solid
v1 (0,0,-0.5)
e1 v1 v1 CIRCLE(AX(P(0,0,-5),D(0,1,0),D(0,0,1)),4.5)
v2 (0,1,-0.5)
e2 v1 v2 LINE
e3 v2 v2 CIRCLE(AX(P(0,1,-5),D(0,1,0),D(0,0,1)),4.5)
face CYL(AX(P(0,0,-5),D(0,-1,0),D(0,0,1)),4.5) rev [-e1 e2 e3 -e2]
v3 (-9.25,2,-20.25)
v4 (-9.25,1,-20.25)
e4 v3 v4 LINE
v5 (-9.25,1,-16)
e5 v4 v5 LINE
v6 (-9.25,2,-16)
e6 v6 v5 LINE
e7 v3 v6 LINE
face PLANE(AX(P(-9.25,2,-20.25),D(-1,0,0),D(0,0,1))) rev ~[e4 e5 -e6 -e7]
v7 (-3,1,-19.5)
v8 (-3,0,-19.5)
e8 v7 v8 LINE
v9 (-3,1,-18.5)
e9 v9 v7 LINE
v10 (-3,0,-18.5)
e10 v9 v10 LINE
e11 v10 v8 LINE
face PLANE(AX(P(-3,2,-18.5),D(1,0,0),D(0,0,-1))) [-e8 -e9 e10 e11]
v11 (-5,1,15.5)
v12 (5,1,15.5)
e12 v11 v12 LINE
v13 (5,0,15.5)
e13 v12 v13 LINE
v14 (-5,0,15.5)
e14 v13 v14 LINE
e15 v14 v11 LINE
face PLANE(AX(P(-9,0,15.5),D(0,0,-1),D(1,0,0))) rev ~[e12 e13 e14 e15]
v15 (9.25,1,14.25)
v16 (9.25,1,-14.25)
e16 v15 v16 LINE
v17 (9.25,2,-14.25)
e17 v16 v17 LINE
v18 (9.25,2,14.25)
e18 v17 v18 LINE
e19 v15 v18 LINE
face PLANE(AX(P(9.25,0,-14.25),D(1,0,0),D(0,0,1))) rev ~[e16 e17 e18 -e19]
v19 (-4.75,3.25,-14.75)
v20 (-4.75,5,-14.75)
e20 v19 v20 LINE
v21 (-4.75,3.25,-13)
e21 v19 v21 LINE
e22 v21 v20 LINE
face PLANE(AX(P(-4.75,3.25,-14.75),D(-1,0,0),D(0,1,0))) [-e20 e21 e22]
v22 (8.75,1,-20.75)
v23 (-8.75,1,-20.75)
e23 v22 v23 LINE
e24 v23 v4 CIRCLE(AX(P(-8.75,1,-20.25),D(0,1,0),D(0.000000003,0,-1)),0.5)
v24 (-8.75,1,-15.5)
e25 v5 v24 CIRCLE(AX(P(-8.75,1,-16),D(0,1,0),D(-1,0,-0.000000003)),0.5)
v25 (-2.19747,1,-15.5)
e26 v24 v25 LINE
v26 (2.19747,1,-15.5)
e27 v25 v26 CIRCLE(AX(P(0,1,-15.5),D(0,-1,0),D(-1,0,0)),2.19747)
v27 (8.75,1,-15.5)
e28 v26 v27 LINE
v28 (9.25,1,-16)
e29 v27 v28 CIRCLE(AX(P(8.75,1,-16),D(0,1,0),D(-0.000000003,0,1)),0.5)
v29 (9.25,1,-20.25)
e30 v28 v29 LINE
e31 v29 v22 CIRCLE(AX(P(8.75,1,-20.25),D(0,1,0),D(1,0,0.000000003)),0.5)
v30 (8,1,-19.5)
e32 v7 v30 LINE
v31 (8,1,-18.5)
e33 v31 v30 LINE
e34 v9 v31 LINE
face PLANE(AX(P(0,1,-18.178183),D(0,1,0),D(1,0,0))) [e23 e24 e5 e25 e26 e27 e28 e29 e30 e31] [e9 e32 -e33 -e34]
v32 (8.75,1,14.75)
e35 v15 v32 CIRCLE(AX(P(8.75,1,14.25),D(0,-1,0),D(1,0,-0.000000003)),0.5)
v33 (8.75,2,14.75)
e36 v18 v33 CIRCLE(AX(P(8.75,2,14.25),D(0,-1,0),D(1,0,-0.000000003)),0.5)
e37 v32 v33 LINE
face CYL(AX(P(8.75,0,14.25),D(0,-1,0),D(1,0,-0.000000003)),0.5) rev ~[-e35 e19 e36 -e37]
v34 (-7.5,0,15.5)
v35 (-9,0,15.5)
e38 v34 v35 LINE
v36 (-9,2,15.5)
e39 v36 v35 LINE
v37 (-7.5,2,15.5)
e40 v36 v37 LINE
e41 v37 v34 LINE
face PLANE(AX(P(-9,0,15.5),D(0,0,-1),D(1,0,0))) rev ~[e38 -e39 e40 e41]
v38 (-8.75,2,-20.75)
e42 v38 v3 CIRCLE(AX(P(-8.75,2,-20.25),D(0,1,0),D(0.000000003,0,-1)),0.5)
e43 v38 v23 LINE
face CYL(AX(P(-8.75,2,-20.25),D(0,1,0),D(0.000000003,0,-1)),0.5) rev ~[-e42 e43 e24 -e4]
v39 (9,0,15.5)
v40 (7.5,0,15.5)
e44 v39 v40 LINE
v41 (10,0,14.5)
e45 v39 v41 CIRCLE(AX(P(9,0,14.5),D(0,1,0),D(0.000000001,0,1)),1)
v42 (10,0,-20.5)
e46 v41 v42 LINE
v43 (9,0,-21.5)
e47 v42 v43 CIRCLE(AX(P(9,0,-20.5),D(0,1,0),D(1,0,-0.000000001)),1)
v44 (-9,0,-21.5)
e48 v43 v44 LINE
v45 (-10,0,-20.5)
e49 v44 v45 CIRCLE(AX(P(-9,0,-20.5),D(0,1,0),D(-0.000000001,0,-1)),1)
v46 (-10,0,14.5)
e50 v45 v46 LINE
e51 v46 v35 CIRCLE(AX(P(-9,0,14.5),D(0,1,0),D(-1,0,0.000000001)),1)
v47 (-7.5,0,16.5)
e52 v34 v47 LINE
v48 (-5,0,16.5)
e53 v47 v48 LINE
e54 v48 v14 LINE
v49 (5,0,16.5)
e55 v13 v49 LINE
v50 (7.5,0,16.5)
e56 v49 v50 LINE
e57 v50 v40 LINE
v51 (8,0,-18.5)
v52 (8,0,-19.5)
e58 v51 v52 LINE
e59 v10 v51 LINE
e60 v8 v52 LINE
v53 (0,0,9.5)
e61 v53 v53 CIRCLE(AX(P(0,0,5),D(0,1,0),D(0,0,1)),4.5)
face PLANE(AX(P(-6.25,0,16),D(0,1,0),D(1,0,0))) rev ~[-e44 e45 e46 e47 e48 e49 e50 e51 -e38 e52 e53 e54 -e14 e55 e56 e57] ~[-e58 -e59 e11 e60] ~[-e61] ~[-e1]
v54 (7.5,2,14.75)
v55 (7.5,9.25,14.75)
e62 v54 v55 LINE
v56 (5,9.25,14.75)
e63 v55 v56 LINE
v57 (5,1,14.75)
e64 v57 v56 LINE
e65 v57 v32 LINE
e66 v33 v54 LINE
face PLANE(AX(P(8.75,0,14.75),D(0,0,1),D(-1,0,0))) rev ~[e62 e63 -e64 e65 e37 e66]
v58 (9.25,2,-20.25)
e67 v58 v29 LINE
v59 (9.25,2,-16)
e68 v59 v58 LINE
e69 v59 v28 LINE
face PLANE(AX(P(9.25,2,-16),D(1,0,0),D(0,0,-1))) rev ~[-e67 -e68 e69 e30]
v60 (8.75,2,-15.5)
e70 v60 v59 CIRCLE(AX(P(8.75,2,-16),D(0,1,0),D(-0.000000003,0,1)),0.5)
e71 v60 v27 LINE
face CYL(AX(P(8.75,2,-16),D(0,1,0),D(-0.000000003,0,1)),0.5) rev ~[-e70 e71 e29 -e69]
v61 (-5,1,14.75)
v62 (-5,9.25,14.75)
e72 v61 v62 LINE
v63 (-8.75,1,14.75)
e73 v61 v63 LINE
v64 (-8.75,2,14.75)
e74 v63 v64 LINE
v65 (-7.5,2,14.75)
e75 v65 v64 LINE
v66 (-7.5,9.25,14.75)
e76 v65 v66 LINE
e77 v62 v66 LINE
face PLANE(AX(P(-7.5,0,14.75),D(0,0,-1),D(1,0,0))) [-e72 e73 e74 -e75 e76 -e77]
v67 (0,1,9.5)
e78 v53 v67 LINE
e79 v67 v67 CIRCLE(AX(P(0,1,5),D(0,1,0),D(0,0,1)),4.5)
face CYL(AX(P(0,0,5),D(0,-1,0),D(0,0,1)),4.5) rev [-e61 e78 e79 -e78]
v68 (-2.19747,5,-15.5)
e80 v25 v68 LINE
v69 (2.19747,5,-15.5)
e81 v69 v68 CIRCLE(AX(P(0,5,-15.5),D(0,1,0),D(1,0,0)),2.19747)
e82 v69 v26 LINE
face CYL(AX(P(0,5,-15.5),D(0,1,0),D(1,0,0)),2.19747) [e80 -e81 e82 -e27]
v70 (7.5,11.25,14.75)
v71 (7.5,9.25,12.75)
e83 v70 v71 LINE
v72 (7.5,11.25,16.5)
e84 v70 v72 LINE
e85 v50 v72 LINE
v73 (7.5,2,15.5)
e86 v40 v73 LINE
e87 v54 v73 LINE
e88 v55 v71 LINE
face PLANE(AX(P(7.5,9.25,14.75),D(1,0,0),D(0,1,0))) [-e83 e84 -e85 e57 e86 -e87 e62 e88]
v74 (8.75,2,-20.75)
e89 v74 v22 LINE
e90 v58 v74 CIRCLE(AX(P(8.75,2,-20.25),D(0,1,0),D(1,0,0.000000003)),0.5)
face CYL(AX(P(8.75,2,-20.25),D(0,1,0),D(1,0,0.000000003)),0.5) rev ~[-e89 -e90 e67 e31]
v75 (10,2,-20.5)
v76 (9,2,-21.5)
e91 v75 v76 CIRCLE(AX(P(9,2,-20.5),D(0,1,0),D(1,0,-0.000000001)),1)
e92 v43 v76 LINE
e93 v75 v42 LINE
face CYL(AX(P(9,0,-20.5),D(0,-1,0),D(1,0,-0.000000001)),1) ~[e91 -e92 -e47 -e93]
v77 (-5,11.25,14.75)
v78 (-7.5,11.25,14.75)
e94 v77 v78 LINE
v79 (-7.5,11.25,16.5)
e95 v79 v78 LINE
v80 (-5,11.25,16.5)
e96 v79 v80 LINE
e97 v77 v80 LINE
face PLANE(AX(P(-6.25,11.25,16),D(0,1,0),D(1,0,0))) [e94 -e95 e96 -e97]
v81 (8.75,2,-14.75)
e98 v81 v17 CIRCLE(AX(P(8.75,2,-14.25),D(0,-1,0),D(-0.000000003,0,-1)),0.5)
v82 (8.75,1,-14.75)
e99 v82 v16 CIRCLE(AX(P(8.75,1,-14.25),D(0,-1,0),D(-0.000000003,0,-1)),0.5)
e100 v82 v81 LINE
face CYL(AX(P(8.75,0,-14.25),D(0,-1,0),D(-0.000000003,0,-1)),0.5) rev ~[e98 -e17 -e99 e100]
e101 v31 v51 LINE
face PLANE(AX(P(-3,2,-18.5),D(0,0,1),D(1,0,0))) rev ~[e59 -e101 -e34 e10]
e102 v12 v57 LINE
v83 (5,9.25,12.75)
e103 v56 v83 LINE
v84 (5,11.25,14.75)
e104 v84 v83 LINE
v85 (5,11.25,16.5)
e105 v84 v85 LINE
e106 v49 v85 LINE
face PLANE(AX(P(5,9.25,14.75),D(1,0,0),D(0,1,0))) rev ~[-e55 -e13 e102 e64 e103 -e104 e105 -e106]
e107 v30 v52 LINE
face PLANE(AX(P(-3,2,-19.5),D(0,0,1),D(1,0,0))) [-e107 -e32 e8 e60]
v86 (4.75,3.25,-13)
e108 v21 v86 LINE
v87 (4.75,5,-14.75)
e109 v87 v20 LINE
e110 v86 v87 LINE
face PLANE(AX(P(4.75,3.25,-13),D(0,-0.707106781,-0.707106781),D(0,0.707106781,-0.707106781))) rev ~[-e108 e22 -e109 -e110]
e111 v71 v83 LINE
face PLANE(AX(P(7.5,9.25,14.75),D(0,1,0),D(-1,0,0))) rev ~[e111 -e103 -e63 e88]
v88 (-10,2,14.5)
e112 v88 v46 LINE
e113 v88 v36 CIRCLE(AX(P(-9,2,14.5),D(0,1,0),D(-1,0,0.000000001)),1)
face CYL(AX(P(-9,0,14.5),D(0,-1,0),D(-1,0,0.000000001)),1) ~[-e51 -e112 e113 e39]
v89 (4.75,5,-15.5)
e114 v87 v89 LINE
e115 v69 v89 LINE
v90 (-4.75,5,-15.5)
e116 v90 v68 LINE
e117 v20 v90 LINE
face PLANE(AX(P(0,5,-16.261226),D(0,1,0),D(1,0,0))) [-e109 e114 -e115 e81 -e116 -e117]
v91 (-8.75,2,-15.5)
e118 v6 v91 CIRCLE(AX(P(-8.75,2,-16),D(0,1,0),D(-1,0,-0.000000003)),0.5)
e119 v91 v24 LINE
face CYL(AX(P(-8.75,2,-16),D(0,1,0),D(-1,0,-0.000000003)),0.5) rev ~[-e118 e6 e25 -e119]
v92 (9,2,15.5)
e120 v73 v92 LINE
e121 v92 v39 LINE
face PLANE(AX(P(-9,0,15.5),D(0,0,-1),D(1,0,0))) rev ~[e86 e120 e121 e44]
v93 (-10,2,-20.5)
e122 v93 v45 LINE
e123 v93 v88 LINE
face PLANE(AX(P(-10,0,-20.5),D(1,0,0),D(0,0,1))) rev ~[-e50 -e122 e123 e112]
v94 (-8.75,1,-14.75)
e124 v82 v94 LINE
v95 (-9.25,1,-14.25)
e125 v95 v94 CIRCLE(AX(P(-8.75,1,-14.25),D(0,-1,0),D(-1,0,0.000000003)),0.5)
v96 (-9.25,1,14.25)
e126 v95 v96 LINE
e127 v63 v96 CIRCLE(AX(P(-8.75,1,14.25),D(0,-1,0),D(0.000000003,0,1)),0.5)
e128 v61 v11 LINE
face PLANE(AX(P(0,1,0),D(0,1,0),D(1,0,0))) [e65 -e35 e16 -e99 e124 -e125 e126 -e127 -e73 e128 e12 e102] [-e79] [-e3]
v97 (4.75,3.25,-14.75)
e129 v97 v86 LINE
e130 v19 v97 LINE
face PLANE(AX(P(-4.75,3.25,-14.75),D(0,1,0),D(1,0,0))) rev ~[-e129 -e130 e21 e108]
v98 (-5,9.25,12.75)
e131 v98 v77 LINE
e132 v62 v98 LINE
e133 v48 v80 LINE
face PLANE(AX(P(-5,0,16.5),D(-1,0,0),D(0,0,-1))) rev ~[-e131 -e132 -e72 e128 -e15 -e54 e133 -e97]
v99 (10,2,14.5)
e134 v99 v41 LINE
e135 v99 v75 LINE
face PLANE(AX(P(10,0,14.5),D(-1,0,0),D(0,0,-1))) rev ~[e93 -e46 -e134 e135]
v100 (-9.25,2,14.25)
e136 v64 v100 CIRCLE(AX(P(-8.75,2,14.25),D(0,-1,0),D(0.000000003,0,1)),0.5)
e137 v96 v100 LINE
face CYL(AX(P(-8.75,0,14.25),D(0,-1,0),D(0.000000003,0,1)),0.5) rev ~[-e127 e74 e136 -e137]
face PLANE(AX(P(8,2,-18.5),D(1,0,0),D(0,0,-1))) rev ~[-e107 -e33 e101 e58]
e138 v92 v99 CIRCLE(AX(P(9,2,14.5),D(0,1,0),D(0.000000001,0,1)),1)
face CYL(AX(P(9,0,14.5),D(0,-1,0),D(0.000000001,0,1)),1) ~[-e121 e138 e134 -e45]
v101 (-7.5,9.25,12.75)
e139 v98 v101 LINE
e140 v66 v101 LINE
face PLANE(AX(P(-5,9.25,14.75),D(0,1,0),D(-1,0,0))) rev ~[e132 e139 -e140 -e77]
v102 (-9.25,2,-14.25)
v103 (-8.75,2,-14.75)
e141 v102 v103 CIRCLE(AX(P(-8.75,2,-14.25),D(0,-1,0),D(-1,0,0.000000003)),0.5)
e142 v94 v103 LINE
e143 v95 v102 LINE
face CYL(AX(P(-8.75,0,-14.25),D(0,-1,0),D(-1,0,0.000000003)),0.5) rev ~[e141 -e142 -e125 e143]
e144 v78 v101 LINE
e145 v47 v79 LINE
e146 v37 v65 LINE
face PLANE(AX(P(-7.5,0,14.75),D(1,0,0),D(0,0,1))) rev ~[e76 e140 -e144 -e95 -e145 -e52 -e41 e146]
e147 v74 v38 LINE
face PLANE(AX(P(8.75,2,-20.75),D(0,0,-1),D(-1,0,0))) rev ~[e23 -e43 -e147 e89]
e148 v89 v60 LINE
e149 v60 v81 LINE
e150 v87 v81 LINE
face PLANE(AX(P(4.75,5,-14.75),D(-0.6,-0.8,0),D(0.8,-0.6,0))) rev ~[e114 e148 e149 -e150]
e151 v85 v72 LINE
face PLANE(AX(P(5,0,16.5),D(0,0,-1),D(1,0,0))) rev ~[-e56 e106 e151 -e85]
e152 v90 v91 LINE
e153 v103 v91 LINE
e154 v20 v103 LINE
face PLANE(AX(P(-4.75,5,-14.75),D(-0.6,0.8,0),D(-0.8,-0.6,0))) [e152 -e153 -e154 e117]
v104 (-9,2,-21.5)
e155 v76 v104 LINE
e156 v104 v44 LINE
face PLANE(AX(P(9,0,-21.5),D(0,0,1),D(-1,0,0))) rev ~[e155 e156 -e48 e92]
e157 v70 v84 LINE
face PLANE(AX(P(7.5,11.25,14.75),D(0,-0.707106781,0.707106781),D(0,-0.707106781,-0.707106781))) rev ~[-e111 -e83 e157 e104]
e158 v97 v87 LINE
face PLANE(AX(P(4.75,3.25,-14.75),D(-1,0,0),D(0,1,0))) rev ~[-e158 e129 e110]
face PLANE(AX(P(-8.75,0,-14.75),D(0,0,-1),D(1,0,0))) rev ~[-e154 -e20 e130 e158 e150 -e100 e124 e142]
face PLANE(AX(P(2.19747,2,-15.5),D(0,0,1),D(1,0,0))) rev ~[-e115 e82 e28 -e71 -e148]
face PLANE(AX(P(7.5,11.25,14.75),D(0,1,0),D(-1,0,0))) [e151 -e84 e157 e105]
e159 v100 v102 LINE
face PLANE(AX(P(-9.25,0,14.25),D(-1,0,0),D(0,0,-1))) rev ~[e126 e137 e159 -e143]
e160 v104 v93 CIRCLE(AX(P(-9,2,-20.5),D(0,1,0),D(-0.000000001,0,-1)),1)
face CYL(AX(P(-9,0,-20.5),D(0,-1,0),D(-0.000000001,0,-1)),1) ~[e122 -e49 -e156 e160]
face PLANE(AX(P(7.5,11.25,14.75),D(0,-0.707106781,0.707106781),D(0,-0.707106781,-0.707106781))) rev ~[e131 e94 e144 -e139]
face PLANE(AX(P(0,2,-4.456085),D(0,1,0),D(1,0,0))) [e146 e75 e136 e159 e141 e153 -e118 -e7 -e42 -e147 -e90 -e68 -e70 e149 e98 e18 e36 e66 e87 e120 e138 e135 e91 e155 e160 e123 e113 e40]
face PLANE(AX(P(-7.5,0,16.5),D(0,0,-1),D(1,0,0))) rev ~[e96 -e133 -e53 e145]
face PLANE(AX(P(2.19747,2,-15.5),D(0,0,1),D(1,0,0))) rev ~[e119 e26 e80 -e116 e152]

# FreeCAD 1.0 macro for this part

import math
import FreeCAD as App
import Part
import Sketcher

V = App.Vector
Q = App.Units.Quantity

doc = App.newDocument("Part")
params = doc.addObject("Spreadsheet::Sheet", "Params")
for row, (alias, value) in enumerate([
    ("sketch1_radius", "1 mm"),
    ("sketch1_radius2", "0.5 mm"),
    ("sketch1_width", "18 mm"),
    ("sketch1_height", "35 mm"),
    ("sketch1_width2", "17.5 mm"),
    ("pad1_length", "1 mm"),
    ("sketch2_diameter", "9 mm"),
    ("sketch2_radius", "0.5 mm"),
    ("sketch2_width", "17.5 mm"),
    ("sketch2_height", "28.5 mm"),
    ("pad2_length", "1 mm"),
    ("sketch3_radius", "1 mm"),
    ("sketch3_radius2", "0.5 mm"),
    ("sketch3_width", "18 mm"),
    ("sketch3_height", "35 mm"),
    ("sketch3_width2", "1.5 mm"),
    ("pad3_length", "2 mm"),
    ("sketch4_width", "17.5 mm"),
    ("sketch4_height", "0.75 mm"),
    ("pad4_length", "5 mm"),
    ("sketch5_width", "9.5 mm"),
    ("sketch5_height", "1.75 mm"),
    ("pad5_length", "1.75 mm"),
    ("sketch6_width", "4 mm"),
    ("sketch6_height", "3 mm"),
    ("pocket1_length", "0.75 mm"),
    ("sketch7_width", "2.5 mm"),
    ("sketch7_height", "1.75 mm"),
    ("pad6_length", "11.25 mm"),
    ("sketch8_height", "2 mm"),
    ("sketch8_width", "2.5 mm"),
    ("pad7_length", "2 mm"),
    ("sketch9_width", "2 mm"),
    ("pocket2_length", "15 mm"),
    ("sketch10_width", "1.75 mm"),
    ("pocket3_length", "9.5 mm"),
    ("sketch11_radius", "0.5 mm"),
    ("sketch11_width", "17.5 mm"),
    ("sketch11_height", "4.25 mm"),
    ("pocket4_length", "1 mm"),
    ("pad8_length", "3 mm"),
    ("sketch13_width", "11 mm"),
    ("sketch13_height", "1 mm"),
    ("pocket5_length", "3 mm"),
], start=1):
    params.set(f"A{row}", alias)
    params.set(f"B{row}", "=" + value)
    params.setAlias(f"B{row}", alias)

body = doc.addObject("PartDesign::Body", "Body")

sketch1 = doc.addObject("Sketcher::SketchObject", "Sketch")
body.addObject(sketch1)
sketch1.AttachmentSupport = (doc.XZ_Plane, [""])
sketch1.MapMode = "FlatFace"
sketch1.addGeometry([
    Part.LineSegment(V(9, -21.5, 0), V(-9, -21.5, 0)),
    Part.ArcOfCircle(Part.Circle(V(-9, -20.5, 0), V(0, 0, 1), 1), math.radians(-180), math.radians(-90)),
    Part.LineSegment(V(-10, -20.5, 0), V(-10, 14.5, 0)),
    Part.ArcOfCircle(Part.Circle(V(-9, 14.5, 0), V(0, 0, 1), 1), math.radians(90), math.radians(180)),
    Part.LineSegment(V(-9, 15.5, 0), V(9, 15.5, 0)),
    Part.ArcOfCircle(Part.Circle(V(9, 14.5, 0), V(0, 0, 1), 1), math.radians(0), math.radians(90)),
    Part.LineSegment(V(10, 14.5, 0), V(10, -20.5, 0)),
    Part.ArcOfCircle(Part.Circle(V(9, -20.5, 0), V(0, 0, 1), 1), math.radians(-90), math.radians(0)),
    Part.ArcOfCircle(Part.Circle(V(8.75, -14.25, 0), V(0, 0, 1), 0.5), math.radians(-90), math.radians(0)),
    Part.LineSegment(V(9.25, -14.25, 0), V(9.25, 14.25, 0)),
    Part.ArcOfCircle(Part.Circle(V(8.75, 14.25, 0), V(0, 0, 1), 0.5), math.radians(0), math.radians(90)),
    Part.LineSegment(V(8.75, 14.75, 0), V(-8.75, 14.75, 0)),
    Part.ArcOfCircle(Part.Circle(V(-8.75, 14.25, 0), V(0, 0, 1), 0.5), math.radians(90), math.radians(180)),
    Part.LineSegment(V(-9.25, 14.25, 0), V(-9.25, -14.25, 0)),
    Part.ArcOfCircle(Part.Circle(V(-8.75, -14.25, 0), V(0, 0, 1), 0.5), math.radians(180), math.radians(270)),
    Part.LineSegment(V(-8.75, -14.75, 0), V(8.75, -14.75, 0)),
], False)
sketch1.addConstraint([
    Sketcher.Constraint("Tangent", 0, 2, 1, 2),
    Sketcher.Constraint("Tangent", 1, 1, 2, 1),
    Sketcher.Constraint("Tangent", 2, 2, 3, 2),
    Sketcher.Constraint("Tangent", 3, 1, 4, 1),
    Sketcher.Constraint("Tangent", 4, 2, 5, 2),
    Sketcher.Constraint("Tangent", 5, 1, 6, 1),
    Sketcher.Constraint("Tangent", 6, 2, 7, 2),
    Sketcher.Constraint("Tangent", 7, 1, 0, 1),
    Sketcher.Constraint("Tangent", 8, 2, 9, 1),
    Sketcher.Constraint("Tangent", 9, 2, 10, 1),
    Sketcher.Constraint("Tangent", 10, 2, 11, 1),
    Sketcher.Constraint("Tangent", 11, 2, 12, 1),
    Sketcher.Constraint("Tangent", 12, 2, 13, 1),
    Sketcher.Constraint("Tangent", 13, 2, 14, 1),
    Sketcher.Constraint("Tangent", 14, 2, 15, 1),
    Sketcher.Constraint("Tangent", 15, 2, 8, 1),
    Sketcher.Constraint("Horizontal", 0),
    Sketcher.Constraint("Vertical", 2),
    Sketcher.Constraint("Horizontal", 4),
    Sketcher.Constraint("Vertical", 6),
    Sketcher.Constraint("Vertical", 9),
    Sketcher.Constraint("Horizontal", 11),
    Sketcher.Constraint("Vertical", 13),
    Sketcher.Constraint("Horizontal", 15),
    Sketcher.Constraint("Equal", 1, 3),
    Sketcher.Constraint("Equal", 3, 5),
    Sketcher.Constraint("Equal", 5, 7),
    Sketcher.Constraint("Equal", 8, 10),
    Sketcher.Constraint("Equal", 10, 12),
    Sketcher.Constraint("Equal", 12, 14),
    Sketcher.Constraint("Symmetric", 8, 3, 12, 3, -1, 1),
    Sketcher.Constraint("Radius", 1, Q("1 mm")),
    Sketcher.Constraint("Radius", 8, Q("0.5 mm")),
    Sketcher.Constraint("DistanceX", 0, 2, 0, 1, Q("18 mm")),
    Sketcher.Constraint("DistanceY", 2, 1, 2, 2, Q("35 mm")),
    Sketcher.Constraint("DistanceX", 11, 2, 11, 1, Q("17.5 mm")),
    Sketcher.Constraint("DistanceY", 9, 1, 9, 2, Q("28.5 mm")),
    Sketcher.Constraint("DistanceX", 1, 3, -1, 1, Q("9 mm")),
    Sketcher.Constraint("DistanceY", 1, 3, -1, 1, Q("20.5 mm")),
])
sketch1.setExpression("Constraints[31]", "Params.sketch1_radius")
sketch1.setExpression("Constraints[32]", "Params.sketch1_radius2")
sketch1.setExpression("Constraints[33]", "Params.sketch1_width")
sketch1.setExpression("Constraints[34]", "Params.sketch1_height")
sketch1.setExpression("Constraints[35]", "Params.sketch1_width2")
pad1 = doc.addObject("PartDesign::Pad", "Pad")
body.addObject(pad1)
pad1.Profile = sketch1
pad1.setExpression("Length", "Params.pad1_length")
pad1.Reversed = True

sketch2 = doc.addObject("Sketcher::SketchObject", "Sketch001")
body.addObject(sketch2)
sketch2.AttachmentSupport = (doc.XZ_Plane, [""])
sketch2.MapMode = "FlatFace"
sketch2.addGeometry([
    Part.LineSegment(V(-9.25, -14.25, 0), V(-9.25, 14.25, 0)),
    Part.ArcOfCircle(Part.Circle(V(-8.75, 14.25, 0), V(0, 0, 1), 0.5), math.radians(90), math.radians(180)),
    Part.LineSegment(V(-8.75, 14.75, 0), V(8.75, 14.75, 0)),
    Part.ArcOfCircle(Part.Circle(V(8.75, 14.25, 0), V(0, 0, 1), 0.5), math.radians(0), math.radians(90)),
    Part.LineSegment(V(9.25, 14.25, 0), V(9.25, -14.25, 0)),
    Part.ArcOfCircle(Part.Circle(V(8.75, -14.25, 0), V(0, 0, 1), 0.5), math.radians(-90), math.radians(0)),
    Part.LineSegment(V(8.75, -14.75, 0), V(-8.75, -14.75, 0)),
    Part.ArcOfCircle(Part.Circle(V(-8.75, -14.25, 0), V(0, 0, 1), 0.5), math.radians(180), math.radians(270)),
    Part.Circle(V(0, 5, 0), V(0, 0, 1), 4.5),
    Part.Circle(V(0, -5, 0), V(0, 0, 1), 4.5),
], False)
sketch2.addConstraint([
    Sketcher.Constraint("Tangent", 0, 2, 1, 2),
    Sketcher.Constraint("Tangent", 1, 1, 2, 1),
    Sketcher.Constraint("Tangent", 2, 2, 3, 2),
    Sketcher.Constraint("Tangent", 3, 1, 4, 1),
    Sketcher.Constraint("Tangent", 4, 2, 5, 2),
    Sketcher.Constraint("Tangent", 5, 1, 6, 1),
    Sketcher.Constraint("Tangent", 6, 2, 7, 2),
    Sketcher.Constraint("Tangent", 7, 1, 0, 1),
    Sketcher.Constraint("Vertical", 0),
    Sketcher.Constraint("Horizontal", 2),
    Sketcher.Constraint("Vertical", 4),
    Sketcher.Constraint("Horizontal", 6),
    Sketcher.Constraint("Equal", 1, 3),
    Sketcher.Constraint("Equal", 3, 5),
    Sketcher.Constraint("Equal", 5, 7),
    Sketcher.Constraint("Equal", 8, 9),
    Sketcher.Constraint("Symmetric", 1, 3, 5, 3, -1, 1),
    Sketcher.Constraint("Symmetric", 8, 3, 9, 3, -1, 1),
    Sketcher.Constraint("PointOnObject", 8, 3, -2),
    Sketcher.Constraint("Diameter", 8, Q("9 mm")),
    Sketcher.Constraint("Radius", 1, Q("0.5 mm")),
    Sketcher.Constraint("DistanceX", 2, 1, 2, 2, Q("17.5 mm")),
    Sketcher.Constraint("DistanceY", 0, 1, 0, 2, Q("28.5 mm")),
    Sketcher.Constraint("DistanceY", -1, 1, 8, 3, Q("5 mm")),
])
sketch2.setExpression("Constraints[19]", "Params.sketch2_diameter")
sketch2.setExpression("Constraints[20]", "Params.sketch2_radius")
sketch2.setExpression("Constraints[21]", "Params.sketch2_width")
sketch2.setExpression("Constraints[22]", "Params.sketch2_height")
pad2 = doc.addObject("PartDesign::Pad", "Pad001")
body.addObject(pad2)
pad2.Profile = sketch2
pad2.setExpression("Length", "Params.pad2_length")
pad2.Reversed = True

sketch3 = doc.addObject("Sketcher::SketchObject", "Sketch002")
body.addObject(sketch3)
sketch3.AttachmentSupport = (doc.XZ_Plane, [""])
sketch3.MapMode = "FlatFace"
sketch3.addGeometry([
    Part.LineSegment(V(8.75, -15.5, 0), V(8.75, -14.75, 0)),
    Part.ArcOfCircle(Part.Circle(V(8.75, -14.25, 0), V(0, 0, 1), 0.5), math.radians(-90), math.radians(0)),
    Part.LineSegment(V(9.25, -14.25, 0), V(9.25, 14.25, 0)),
    Part.ArcOfCircle(Part.Circle(V(8.75, 14.25, 0), V(0, 0, 1), 0.5), math.radians(0), math.radians(90)),
    Part.LineSegment(V(8.75, 14.75, 0), V(7.5, 14.75, 0)),
    Part.LineSegment(V(7.5, 14.75, 0), V(7.5, 15.5, 0)),
    Part.LineSegment(V(7.5, 15.5, 0), V(9, 15.5, 0)),
    Part.ArcOfCircle(Part.Circle(V(9, 14.5, 0), V(0, 0, 1), 1), math.radians(0), math.radians(90)),
    Part.LineSegment(V(10, 14.5, 0), V(10, -20.5, 0)),
    Part.ArcOfCircle(Part.Circle(V(9, -20.5, 0), V(0, 0, 1), 1), math.radians(-90), math.radians(0)),
    Part.LineSegment(V(9, -21.5, 0), V(-9, -21.5, 0)),
    Part.ArcOfCircle(Part.Circle(V(-9, -20.5, 0), V(0, 0, 1), 1), math.radians(-180), math.radians(-90)),
    Part.LineSegment(V(-10, -20.5, 0), V(-10, 14.5, 0)),
    Part.ArcOfCircle(Part.Circle(V(-9, 14.5, 0), V(0, 0, 1), 1), math.radians(90), math.radians(180)),
    Part.LineSegment(V(-9, 15.5, 0), V(-7.5, 15.5, 0)),
    Part.LineSegment(V(-7.5, 15.5, 0), V(-7.5, 14.75, 0)),
    Part.LineSegment(V(-7.5, 14.75, 0), V(-8.75, 14.75, 0)),
    Part.ArcOfCircle(Part.Circle(V(-8.75, 14.25, 0), V(0, 0, 1), 0.5), math.radians(90), math.radians(180)),
    Part.LineSegment(V(-9.25, 14.25, 0), V(-9.25, -14.25, 0)),
    Part.ArcOfCircle(Part.Circle(V(-8.75, -14.25, 0), V(0, 0, 1), 0.5), math.radians(180), math.radians(270)),
    Part.LineSegment(V(-8.75, -14.75, 0), V(-8.75, -15.5, 0)),
    Part.LineSegment(V(-8.75, -15.5, 0), V(8.75, -15.5, 0)),
], False)
sketch3.addConstraint([
    Sketcher.Constraint("Coincident", 0, 2, 1, 1),
    Sketcher.Constraint("Tangent", 1, 2, 2, 1),
    Sketcher.Constraint("Tangent", 2, 2, 3, 1),
    Sketcher.Constraint("Tangent", 3, 2, 4, 1),
    Sketcher.Constraint("Coincident", 4, 2, 5, 1),
    Sketcher.Constraint("Coincident", 5, 2, 6, 1),
    Sketcher.Constraint("Tangent", 6, 2, 7, 2),
    Sketcher.Constraint("Tangent", 7, 1, 8, 1),
    Sketcher.Constraint("Tangent", 8, 2, 9, 2),
    Sketcher.Constraint("Tangent", 9, 1, 10, 1),
    Sketcher.Constraint("Tangent", 10, 2, 11, 2),
    Sketcher.Constraint("Tangent", 11, 1, 12, 1),
    Sketcher.Constraint("Tangent", 12, 2, 13, 2),
    Sketcher.Constraint("Tangent", 13, 1, 14, 1),
    Sketcher.Constraint("Coincident", 14, 2, 15, 1),
    Sketcher.Constraint("Coincident", 15, 2, 16, 1),
    Sketcher.Constraint("Tangent", 16, 2, 17, 1),
    Sketcher.Constraint("Tangent", 17, 2, 18, 1),
    Sketcher.Constraint("Tangent", 18, 2, 19, 1),
    Sketcher.Constraint("Coincident", 19, 2, 20, 1),
    Sketcher.Constraint("Coincident", 20, 2, 21, 1),
    Sketcher.Constraint("Coincident", 21, 2, 0, 1),
    Sketcher.Constraint("Vertical", 0),
    Sketcher.Constraint("Vertical", 2),
    Sketcher.Constraint("Horizontal", 4),
    Sketcher.Constraint("Vertical", 5),
    Sketcher.Constraint("Horizontal", 6),
    Sketcher.Constraint("Vertical", 8),
    Sketcher.Constraint("Horizontal", 10),
    Sketcher.Constraint("Vertical", 12),
    Sketcher.Constraint("Horizontal", 14),
    Sketcher.Constraint("Vertical", 15),
    Sketcher.Constraint("Horizontal", 16),
    Sketcher.Constraint("Vertical", 18),
    Sketcher.Constraint("Vertical", 20),
    Sketcher.Constraint("Horizontal", 21),
    Sketcher.Constraint("Equal", 1, 3),
    Sketcher.Constraint("Equal", 7, 9),
    Sketcher.Constraint("Equal", 9, 11),
    Sketcher.Constraint("Equal", 11, 13),
    Sketcher.Constraint("Equal", 3, 17),
    Sketcher.Constraint("Equal", 17, 19),
    Sketcher.Constraint("Symmetric", 1, 3, 17, 3, -1, 1),
    Sketcher.Constraint("Symmetric", 3, 2, 19, 2, -1, 1),
    Sketcher.Constraint("Symmetric", 7, 3, 13, 3, -2),
    Sketcher.Constraint("Symmetric", 4, 2, 15, 2, -2),
    Sketcher.Constraint("Vertical", 3, 3, 0, 2),
    Sketcher.Constraint("Equal", 0, 5),
    Sketcher.Constraint("Radius", 7, Q("1 mm")),
    Sketcher.Constraint("Radius", 1, Q("0.5 mm")),
    Sketcher.Constraint("DistanceX", 10, 2, 10, 1, Q("18 mm")),
    Sketcher.Constraint("DistanceY", 8, 2, 8, 1, Q("35 mm")),
    Sketcher.Constraint("DistanceX", 6, 1, 6, 2, Q("1.5 mm")),
    Sketcher.Constraint("DistanceX", 21, 1, 21, 2, Q("17.5 mm")),
    Sketcher.Constraint("DistanceY", 2, 1, 2, 2, Q("28.5 mm")),
    Sketcher.Constraint("DistanceY", 11, 3, 20, 2, Q("5 mm")),
])
sketch3.setExpression("Constraints[48]", "Params.sketch3_radius")
sketch3.setExpression("Constraints[49]", "Params.sketch3_radius2")
sketch3.setExpression("Constraints[50]", "Params.sketch3_width")
sketch3.setExpression("Constraints[51]", "Params.sketch3_height")
sketch3.setExpression("Constraints[52]", "Params.sketch3_width2")
pad3 = doc.addObject("PartDesign::Pad", "Pad002")
body.addObject(pad3)
pad3.Profile = sketch3
pad3.setExpression("Length", "Params.pad3_length")
pad3.Reversed = True

sketch4 = doc.addObject("Sketcher::SketchObject", "Sketch003")
body.addObject(sketch4)
sketch4.AttachmentSupport = (doc.XZ_Plane, [""])
sketch4.MapMode = "FlatFace"
sketch4.addGeometry([
    Part.LineSegment(V(-8.8, -15.5, 0), V(-8.8, -14.8, 0)),
    Part.LineSegment(V(-8.8, -14.8, 0), V(8.8, -14.8, 0)),
    Part.LineSegment(V(8.8, -14.8, 0), V(8.8, -15.5, 0)),
    Part.LineSegment(V(8.8, -15.5, 0), V(-8.8, -15.5, 0)),
], False)
sketch4.addConstraint([
    Sketcher.Constraint("Coincident", 0, 2, 1, 1),
    Sketcher.Constraint("Coincident", 1, 2, 2, 1),
    Sketcher.Constraint("Coincident", 2, 2, 3, 1),
    Sketcher.Constraint("Coincident", 3, 2, 0, 1),
    Sketcher.Constraint("Vertical", 0),
    Sketcher.Constraint("Horizontal", 1),
    Sketcher.Constraint("Vertical", 2),
    Sketcher.Constraint("Horizontal", 3),
    Sketcher.Constraint("DistanceX", 1, 1, 1, 2, Q("17.5 mm")),
    Sketcher.Constraint("DistanceY", 0, 1, 0, 2, Q("0.75 mm")),
    Sketcher.Constraint("DistanceY", 2, 2, -1, 1, Q("15.5 mm")),
    Sketcher.Constraint("DistanceX", 0, 2, -1, 1, Q("8.75 mm")),
])
sketch4.setExpression("Constraints[8]", "Params.sketch4_width")
sketch4.setExpression("Constraints[9]", "Params.sketch4_height")
pad4 = doc.addObject("PartDesign::Pad", "Pad003")
body.addObject(pad4)
pad4.Profile = sketch4
pad4.setExpression("Length", "Params.pad4_length")
pad4.Reversed = True

sketch5 = doc.addObject("Sketcher::SketchObject", "Sketch004")
body.addObject(sketch5)
sketch5.AttachmentSupport = (doc.XY_Plane, [""])
sketch5.MapMode = "FlatFace"
sketch5.AttachmentOffset = App.Placement(V(0, 0, -14.75), App.Rotation())
sketch5.addGeometry([
    Part.LineSegment(V(-4.8, 5, 0), V(-4.8, 3.2, 0)),
    Part.LineSegment(V(-4.8, 3.2, 0), V(4.8, 3.2, 0)),
    Part.LineSegment(V(4.8, 3.2, 0), V(4.8, 5, 0)),
    Part.LineSegment(V(4.8, 5, 0), V(-4.8, 5, 0)),
], False)
sketch5.addConstraint([
    Sketcher.Constraint("Coincident", 0, 2, 1, 1),
    Sketcher.Constraint("Coincident", 1, 2, 2, 1),
    Sketcher.Constraint("Coincident", 2, 2, 3, 1),
    Sketcher.Constraint("Coincident", 3, 2, 0, 1),
    Sketcher.Constraint("Vertical", 0),
    Sketcher.Constraint("Horizontal", 1),
    Sketcher.Constraint("Vertical", 2),
    Sketcher.Constraint("Horizontal", 3),
    Sketcher.Constraint("DistanceX", 1, 1, 1, 2, Q("9.5 mm")),
    Sketcher.Constraint("DistanceY", -1, 1, 2, 2, Q("5 mm")),
    Sketcher.Constraint("DistanceY", 0, 2, 0, 1, Q("1.75 mm")),
    Sketcher.Constraint("DistanceX", 0, 2, -1, 1, Q("4.75 mm")),
])
sketch5.setExpression("Constraints[8]", "Params.sketch5_width")
sketch5.setExpression("Constraints[10]", "Params.sketch5_height")
pad5 = doc.addObject("PartDesign::Pad", "Pad004")
body.addObject(pad5)
pad5.Profile = sketch5
pad5.setExpression("Length", "Params.pad5_length")

sketch6 = doc.addObject("Sketcher::SketchObject", "Sketch005")
body.addObject(sketch6)
sketch6.AttachmentSupport = (doc.XY_Plane, [""])
sketch6.MapMode = "FlatFace"
sketch6.AttachmentOffset = App.Placement(V(0, 0, -14.75), App.Rotation())
sketch6.addGeometry([
    Part.LineSegment(V(4.8, 5, 0), V(8.8, 2, 0)),
    Part.LineSegment(V(8.8, 2, 0), V(8.8, 5, 0)),
    Part.LineSegment(V(8.8, 5, 0), V(4.8, 5, 0)),
    Part.LineSegment(V(-8.8, 2, 0), V(-4.8, 5, 0)),
    Part.LineSegment(V(-4.8, 5, 0), V(-8.8, 5, 0)),
    Part.LineSegment(V(-8.8, 5, 0), V(-8.8, 2, 0)),
], False)
sketch6.addConstraint([
    Sketcher.Constraint("Coincident", 0, 2, 1, 1),
    Sketcher.Constraint("Coincident", 1, 2, 2, 1),
    Sketcher.Constraint("Coincident", 2, 2, 0, 1),
    Sketcher.Constraint("Coincident", 3, 2, 4, 1),
    Sketcher.Constraint("Coincident", 4, 2, 5, 1),
    Sketcher.Constraint("Coincident", 5, 2, 3, 1),
    Sketcher.Constraint("Vertical", 1),
    Sketcher.Constraint("Horizontal", 2),
    Sketcher.Constraint("Horizontal", 4),
    Sketcher.Constraint("Vertical", 5),
    Sketcher.Constraint("Symmetric", 2, 2, 3, 2, -2),
    Sketcher.Constraint("Symmetric", 0, 2, 5, 2, -2),
    Sketcher.Constraint("DistanceX", 2, 2, 2, 1, Q("4 mm")),
    Sketcher.Constraint("DistanceY", 1, 1, 1, 2, Q("3 mm")),
    Sketcher.Constraint("DistanceY", -1, 1, 0, 2, Q("2 mm")),
    Sketcher.Constraint("DistanceX", 3, 2, 2, 2, Q("9.5 mm")),
])
sketch6.setExpression("Constraints[12]", "Params.sketch6_width")
sketch6.setExpression("Constraints[13]", "Params.sketch6_height")
pocket1 = doc.addObject("PartDesign::Pocket", "Pocket")
body.addObject(pocket1)
pocket1.Profile = sketch6
pocket1.setExpression("Length", "Params.pocket1_length")

sketch7 = doc.addObject("Sketcher::SketchObject", "Sketch006")
body.addObject(sketch7)
sketch7.AttachmentSupport = (doc.XZ_Plane, [""])
sketch7.MapMode = "FlatFace"
sketch7.addGeometry([
    Part.LineSegment(V(-7.5, 16.5, 0), V(-5, 16.5, 0)),
    Part.LineSegment(V(-5, 16.5, 0), V(-5, 14.8, 0)),
    Part.LineSegment(V(-5, 14.8, 0), V(-7.5, 14.8, 0)),
    Part.LineSegment(V(-7.5, 14.8, 0), V(-7.5, 16.5, 0)),
    Part.LineSegment(V(5, 16.5, 0), V(7.5, 16.5, 0)),
    Part.LineSegment(V(7.5, 16.5, 0), V(7.5, 14.8, 0)),
    Part.LineSegment(V(7.5, 14.8, 0), V(5, 14.8, 0)),
    Part.LineSegment(V(5, 14.8, 0), V(5, 16.5, 0)),
], False)
sketch7.addConstraint([
    Sketcher.Constraint("Coincident", 0, 2, 1, 1),
    Sketcher.Constraint("Coincident", 1, 2, 2, 1),
    Sketcher.Constraint("Coincident", 2, 2, 3, 1),
    Sketcher.Constraint("Coincident", 3, 2, 0, 1),
    Sketcher.Constraint("Coincident", 4, 2, 5, 1),
    Sketcher.Constraint("Coincident", 5, 2, 6, 1),
    Sketcher.Constraint("Coincident", 6, 2, 7, 1),
    Sketcher.Constraint("Coincident", 7, 2, 4, 1),
    Sketcher.Constraint("Horizontal", 0),
    Sketcher.Constraint("Vertical", 1),
    Sketcher.Constraint("Horizontal", 2),
    Sketcher.Constraint("Vertical", 3),
    Sketcher.Constraint("Horizontal", 4),
    Sketcher.Constraint("Vertical", 5),
    Sketcher.Constraint("Horizontal", 6),
    Sketcher.Constraint("Vertical", 7),
    Sketcher.Constraint("Symmetric", 3, 2, 4, 2, -2),
    Sketcher.Constraint("Symmetric", 1, 2, 6, 2, -2),
    Sketcher.Constraint("DistanceX", 0, 1, 0, 2, Q("2.5 mm")),
    Sketcher.Constraint("DistanceX", 0, 2, -1, 1, Q("5 mm")),
    Sketcher.Constraint("DistanceY", 1, 2, 1, 1, Q("1.75 mm")),
    Sketcher.Constraint("DistanceY", -1, 1, 0, 2, Q("16.5 mm")),
])
sketch7.setExpression("Constraints[18]", "Params.sketch7_width")
sketch7.setExpression("Constraints[20]", "Params.sketch7_height")
pad6 = doc.addObject("PartDesign::Pad", "Pad005")
body.addObject(pad6)
pad6.Profile = sketch7
pad6.setExpression("Length", "Params.pad6_length")
pad6.Reversed = True

sketch8 = doc.addObject("Sketcher::SketchObject", "Sketch007")
body.addObject(sketch8)
sketch8.AttachmentSupport = (doc.XY_Plane, [""])
sketch8.MapMode = "FlatFace"
sketch8.AttachmentOffset = App.Placement(V(0, 0, 14.75), App.Rotation())
sketch8.addGeometry([
    Part.LineSegment(V(7.5, 11.2, 0), V(7.5, 9.2, 0)),
    Part.LineSegment(V(7.5, 9.2, 0), V(5, 9.2, 0)),
    Part.LineSegment(V(5, 9.2, 0), V(5, 11.2, 0)),
    Part.LineSegment(V(5, 11.2, 0), V(7.5, 11.2, 0)),
    Part.LineSegment(V(-5, 11.2, 0), V(-5, 9.2, 0)),
    Part.LineSegment(V(-5, 9.2, 0), V(-7.5, 9.2, 0)),
    Part.LineSegment(V(-7.5, 9.2, 0), V(-7.5, 11.2, 0)),
    Part.LineSegment(V(-7.5, 11.2, 0), V(-5, 11.2, 0)),
], False)
sketch8.addConstraint([
    Sketcher.Constraint("Coincident", 0, 2, 1, 1),
    Sketcher.Constraint("Coincident", 1, 2, 2, 1),
    Sketcher.Constraint("Coincident", 2, 2, 3, 1),
    Sketcher.Constraint("Coincident", 3, 2, 0, 1),
    Sketcher.Constraint("Coincident", 4, 2, 5, 1),
    Sketcher.Constraint("Coincident", 5, 2, 6, 1),
    Sketcher.Constraint("Coincident", 6, 2, 7, 1),
    Sketcher.Constraint("Coincident", 7, 2, 4, 1),
    Sketcher.Constraint("Vertical", 0),
    Sketcher.Constraint("Horizontal", 1),
    Sketcher.Constraint("Vertical", 2),
    Sketcher.Constraint("Horizontal", 3),
    Sketcher.Constraint("Vertical", 4),
    Sketcher.Constraint("Horizontal", 5),
    Sketcher.Constraint("Vertical", 6),
    Sketcher.Constraint("Horizontal", 7),
    Sketcher.Constraint("Symmetric", 1, 2, 4, 2, -2),
    Sketcher.Constraint("Symmetric", 3, 2, 6, 2, -2),
    Sketcher.Constraint("DistanceY", 0, 2, 0, 1, Q("2 mm")),
    Sketcher.Constraint("DistanceX", 1, 2, 1, 1, Q("2.5 mm")),
    Sketcher.Constraint("DistanceX", -1, 1, 1, 2, Q("5 mm")),
    Sketcher.Constraint("DistanceY", -1, 1, 0, 2, Q("9.25 mm")),
])
sketch8.setExpression("Constraints[18]", "Params.sketch8_height")
sketch8.setExpression("Constraints[19]", "Params.sketch8_width")
pad7 = doc.addObject("PartDesign::Pad", "Pad006")
body.addObject(pad7)
pad7.Profile = sketch8
pad7.setExpression("Length", "Params.pad7_length")
pad7.Reversed = True

sketch9 = doc.addObject("Sketcher::SketchObject", "Sketch008")
body.addObject(sketch9)
sketch9.AttachmentSupport = (doc.YZ_Plane, [""])
sketch9.MapMode = "FlatFace"
sketch9.AttachmentOffset = App.Placement(V(0, 0, 7.5), App.Rotation())
sketch9.addGeometry([
    Part.LineSegment(V(11.2, 14.8, 0), V(9.2, 12.8, 0)),
    Part.LineSegment(V(9.2, 12.8, 0), V(11.2, 12.8, 0)),
    Part.LineSegment(V(11.2, 12.8, 0), V(11.2, 14.8, 0)),
], False)
sketch9.addConstraint([
    Sketcher.Constraint("Coincident", 0, 2, 1, 1),
    Sketcher.Constraint("Coincident", 1, 2, 2, 1),
    Sketcher.Constraint("Coincident", 2, 2, 0, 1),
    Sketcher.Constraint("Horizontal", 1),
    Sketcher.Constraint("Vertical", 2),
    Sketcher.Constraint("Equal", 1, 2),
    Sketcher.Constraint("DistanceX", 1, 1, 1, 2, Q("2 mm")),
    Sketcher.Constraint("DistanceX", -1, 1, 0, 2, Q("9.25 mm")),
    Sketcher.Constraint("DistanceY", -1, 1, 0, 2, Q("12.75 mm")),
])
sketch9.setExpression("Constraints[6]", "Params.sketch9_width")
pocket2 = doc.addObject("PartDesign::Pocket", "Pocket001")
body.addObject(pocket2)
pocket2.Profile = sketch9
pocket2.setExpression("Length", "Params.pocket2_length")

sketch10 = doc.addObject("Sketcher::SketchObject", "Sketch009")
body.addObject(sketch10)
sketch10.AttachmentSupport = (doc.YZ_Plane, [""])
sketch10.MapMode = "FlatFace"
sketch10.AttachmentOffset = App.Placement(V(0, 0, 4.75), App.Rotation())
sketch10.addGeometry([
    Part.LineSegment(V(3.2, -13, 0), V(5, -14.8, 0)),
    Part.LineSegment(V(5, -14.8, 0), V(5, -13, 0)),
    Part.LineSegment(V(5, -13, 0), V(3.2, -13, 0)),
], False)
sketch10.addConstraint([
    Sketcher.Constraint("Coincident", 0, 2, 1, 1),
    Sketcher.Constraint("Coincident", 1, 2, 2, 1),
    Sketcher.Constraint("Coincident", 2, 2, 0, 1),
    Sketcher.Constraint("Vertical", 1),
    Sketcher.Constraint("Horizontal", 2),
    Sketcher.Constraint("Equal", 2, 1),
    Sketcher.Constraint("DistanceX", -1, 1, 0, 2, Q("5 mm")),
    Sketcher.Constraint("DistanceY", 1, 2, -1, 1, Q("13 mm")),
    Sketcher.Constraint("DistanceX", 2, 2, 2, 1, Q("1.75 mm")),
])
sketch10.setExpression("Constraints[8]", "Params.sketch10_width")
pocket3 = doc.addObject("PartDesign::Pocket", "Pocket002")
body.addObject(pocket3)
pocket3.Profile = sketch10
pocket3.setExpression("Length", "Params.pocket3_length")

sketch11 = doc.addObject("Sketcher::SketchObject", "Sketch010")
body.addObject(sketch11)
sketch11.AttachmentSupport = (doc.XZ_Plane, [""])
sketch11.MapMode = "FlatFace"
sketch11.AttachmentOffset = App.Placement(V(0, 0, -2), App.Rotation())
sketch11.addGeometry([
    Part.LineSegment(V(8.75, -20.75, 0), V(-8.75, -20.75, 0)),
    Part.ArcOfCircle(Part.Circle(V(-8.75, -20.25, 0), V(0, 0, 1), 0.5), math.radians(180), math.radians(270)),
    Part.LineSegment(V(-9.25, -20.25, 0), V(-9.25, -16, 0)),
    Part.ArcOfCircle(Part.Circle(V(-8.75, -16, 0), V(0, 0, 1), 0.5), math.radians(90), math.radians(180)),
    Part.LineSegment(V(-8.75, -15.5, 0), V(-2.2, -15.5, 0)),
    Part.ArcOfCircle(Part.Circle(V(0, -15.5, 0), V(0, 0, 1), 2.2), math.radians(180), math.radians(360)),
    Part.LineSegment(V(2.2, -15.5, 0), V(8.75, -15.5, 0)),
    Part.ArcOfCircle(Part.Circle(V(8.75, -16, 0), V(0, 0, 1), 0.5), math.radians(0), math.radians(90)),
    Part.LineSegment(V(9.25, -16, 0), V(9.25, -20.25, 0)),
    Part.ArcOfCircle(Part.Circle(V(8.75, -20.25, 0), V(0, 0, 1), 0.5), math.radians(-90), math.radians(0)),
], False)
sketch11.addConstraint([
    Sketcher.Constraint("Tangent", 0, 2, 1, 2),
    Sketcher.Constraint("Tangent", 1, 1, 2, 1),
    Sketcher.Constraint("Tangent", 2, 2, 3, 2),
    Sketcher.Constraint("Tangent", 3, 1, 4, 1),
    Sketcher.Constraint("Coincident", 4, 2, 5, 1),
    Sketcher.Constraint("Coincident", 5, 2, 6, 1),
    Sketcher.Constraint("Tangent", 6, 2, 7, 2),
    Sketcher.Constraint("Tangent", 7, 1, 8, 1),
    Sketcher.Constraint("Tangent", 8, 2, 9, 2),
    Sketcher.Constraint("Tangent", 9, 1, 0, 1),
    Sketcher.Constraint("Horizontal", 0),
    Sketcher.Constraint("Vertical", 2),
    Sketcher.Constraint("Horizontal", 4),
    Sketcher.Constraint("Horizontal", 6),
    Sketcher.Constraint("Vertical", 8),
    Sketcher.Constraint("Equal", 1, 3),
    Sketcher.Constraint("Equal", 3, 7),
    Sketcher.Constraint("Equal", 7, 9),
    Sketcher.Constraint("Symmetric", 3, 3, 7, 3, -2),
    Sketcher.Constraint("PointOnObject", 5, 3, -2),
    Sketcher.Constraint("Horizontal", 5, 3, 3, 1),
    Sketcher.Constraint("Radius", 1, Q("0.5 mm")),
    Sketcher.Constraint("DistanceX", 0, 2, 0, 1, Q("17.5 mm")),
    Sketcher.Constraint("DistanceY", 3, 3, -1, 1, Q("16 mm")),
    Sketcher.Constraint("DistanceY", 2, 1, 2, 2, Q("4.25 mm")),
    Sketcher.Constraint("Radius", 5, Q("2.19747 mm")),
])
sketch11.setExpression("Constraints[21]", "Params.sketch11_radius")
sketch11.setExpression("Constraints[22]", "Params.sketch11_width")
sketch11.setExpression("Constraints[24]", "Params.sketch11_height")
pocket4 = doc.addObject("PartDesign::Pocket", "Pocket003")
body.addObject(pocket4)
pocket4.Profile = sketch11
pocket4.setExpression("Length", "Params.pocket4_length")
pocket4.Reversed = True

sketch12 = doc.addObject("Sketcher::SketchObject", "Sketch011")
body.addObject(sketch12)
sketch12.AttachmentSupport = (doc.XZ_Plane, [""])
sketch12.MapMode = "FlatFace"
sketch12.AttachmentOffset = App.Placement(V(0, 0, -5), App.Rotation())
sketch12.addGeometry([
    Part.ArcOfCircle(Part.Circle(V(0, -15.5, 0), V(0, 0, 1), 2.2), math.radians(180), math.radians(360)),
    Part.LineSegment(V(-2.2, -15.5, 0), V(2.2, -15.5, 0)),
], False)
sketch12.addConstraint([
    Sketcher.Constraint("Coincident", 0, 1, 1, 1),
    Sketcher.Constraint("Coincident", 1, 2, 0, 2),
    Sketcher.Constraint("Horizontal", 1),
    Sketcher.Constraint("PointOnObject", 0, 3, -2),
    Sketcher.Constraint("DistanceY", 0, 3, -1, 1, Q("15.5 mm")),
    Sketcher.Constraint("DistanceY", 0, 1, -1, 1, Q("15.5 mm")),
    Sketcher.Constraint("Radius", 0, Q("2.19747 mm")),
])
pad8 = doc.addObject("PartDesign::Pad", "Pad007")
body.addObject(pad8)
pad8.Profile = sketch12
pad8.setExpression("Length", "Params.pad8_length")

sketch13 = doc.addObject("Sketcher::SketchObject", "Sketch012")
body.addObject(sketch13)
sketch13.AttachmentSupport = (doc.XZ_Plane, [""])
sketch13.MapMode = "FlatFace"
sketch13.AttachmentOffset = App.Placement(V(0, 0, -2), App.Rotation())
sketch13.addGeometry([
    Part.LineSegment(V(-3, -19.5, 0), V(-3, -18.5, 0)),
    Part.LineSegment(V(-3, -18.5, 0), V(8, -18.5, 0)),
    Part.LineSegment(V(8, -18.5, 0), V(8, -19.5, 0)),
    Part.LineSegment(V(8, -19.5, 0), V(-3, -19.5, 0)),
], False)
sketch13.addConstraint([
    Sketcher.Constraint("Coincident", 0, 2, 1, 1),
    Sketcher.Constraint("Coincident", 1, 2, 2, 1),
    Sketcher.Constraint("Coincident", 2, 2, 3, 1),
    Sketcher.Constraint("Coincident", 3, 2, 0, 1),
    Sketcher.Constraint("Vertical", 0),
    Sketcher.Constraint("Horizontal", 1),
    Sketcher.Constraint("Vertical", 2),
    Sketcher.Constraint("Horizontal", 3),
    Sketcher.Constraint("DistanceX", 1, 1, 1, 2, Q("11 mm")),
    Sketcher.Constraint("DistanceY", 0, 1, 0, 2, Q("1 mm")),
    Sketcher.Constraint("DistanceX", 0, 2, -1, 1, Q("3 mm")),
    Sketcher.Constraint("DistanceY", 0, 2, -1, 1, Q("18.5 mm")),
])
sketch13.setExpression("Constraints[8]", "Params.sketch13_width")
sketch13.setExpression("Constraints[9]", "Params.sketch13_height")
pocket5 = doc.addObject("PartDesign::Pocket", "Pocket004")
body.addObject(pocket5)
pocket5.Profile = sketch13
pocket5.setExpression("Length", "Params.pocket5_length")
pocket5.Reversed = True

doc.recompute()
